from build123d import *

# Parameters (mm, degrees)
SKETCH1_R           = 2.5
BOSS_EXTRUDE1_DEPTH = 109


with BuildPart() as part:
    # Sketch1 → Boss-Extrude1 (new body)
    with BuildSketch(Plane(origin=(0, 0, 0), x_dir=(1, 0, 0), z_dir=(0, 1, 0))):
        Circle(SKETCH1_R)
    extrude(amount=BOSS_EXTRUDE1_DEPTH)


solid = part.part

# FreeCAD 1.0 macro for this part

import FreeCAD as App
import Part
import Sketcher

V = App.Vector

doc = App.newDocument("Part")
params = doc.addObject("Spreadsheet::Sheet", "Params")
for row, (alias, value) in enumerate([
    ("sketch1_diameter", "5 mm"),
    ("pad1_length", "109 mm"),
], start=1):
    params.set(f"A{row}", alias)
    params.set(f"B{row}", "=" + value)
    params.setAlias(f"B{row}", alias)

body = doc.addObject("PartDesign::Body", "Body")

# Sketch on XZ plane
sketch1 = doc.addObject("Sketcher::SketchObject", "Sketch")
body.addObject(sketch1)
sketch1.AttachmentSupport = (doc.XZ_Plane, [""])
sketch1.MapMode = "FlatFace"
sketch1.addGeometry(Part.Circle(V(0, 0, 0), V(0, 0, 1), 2.5), False)
sketch1.addConstraint(Sketcher.Constraint("Coincident", 0, 3, -1, 1))
sketch1.addConstraint(Sketcher.Constraint("Diameter", 0, 5.0))
sketch1.setExpression("Constraints[1]", "Params.sketch1_diameter")
pad1 = doc.addObject("PartDesign::Pad", "Pad")
body.addObject(pad1)
pad1.Profile = sketch1
pad1.setExpression("Length", "Params.pad1_length")
pad1.Reversed = True

doc.recompute()
